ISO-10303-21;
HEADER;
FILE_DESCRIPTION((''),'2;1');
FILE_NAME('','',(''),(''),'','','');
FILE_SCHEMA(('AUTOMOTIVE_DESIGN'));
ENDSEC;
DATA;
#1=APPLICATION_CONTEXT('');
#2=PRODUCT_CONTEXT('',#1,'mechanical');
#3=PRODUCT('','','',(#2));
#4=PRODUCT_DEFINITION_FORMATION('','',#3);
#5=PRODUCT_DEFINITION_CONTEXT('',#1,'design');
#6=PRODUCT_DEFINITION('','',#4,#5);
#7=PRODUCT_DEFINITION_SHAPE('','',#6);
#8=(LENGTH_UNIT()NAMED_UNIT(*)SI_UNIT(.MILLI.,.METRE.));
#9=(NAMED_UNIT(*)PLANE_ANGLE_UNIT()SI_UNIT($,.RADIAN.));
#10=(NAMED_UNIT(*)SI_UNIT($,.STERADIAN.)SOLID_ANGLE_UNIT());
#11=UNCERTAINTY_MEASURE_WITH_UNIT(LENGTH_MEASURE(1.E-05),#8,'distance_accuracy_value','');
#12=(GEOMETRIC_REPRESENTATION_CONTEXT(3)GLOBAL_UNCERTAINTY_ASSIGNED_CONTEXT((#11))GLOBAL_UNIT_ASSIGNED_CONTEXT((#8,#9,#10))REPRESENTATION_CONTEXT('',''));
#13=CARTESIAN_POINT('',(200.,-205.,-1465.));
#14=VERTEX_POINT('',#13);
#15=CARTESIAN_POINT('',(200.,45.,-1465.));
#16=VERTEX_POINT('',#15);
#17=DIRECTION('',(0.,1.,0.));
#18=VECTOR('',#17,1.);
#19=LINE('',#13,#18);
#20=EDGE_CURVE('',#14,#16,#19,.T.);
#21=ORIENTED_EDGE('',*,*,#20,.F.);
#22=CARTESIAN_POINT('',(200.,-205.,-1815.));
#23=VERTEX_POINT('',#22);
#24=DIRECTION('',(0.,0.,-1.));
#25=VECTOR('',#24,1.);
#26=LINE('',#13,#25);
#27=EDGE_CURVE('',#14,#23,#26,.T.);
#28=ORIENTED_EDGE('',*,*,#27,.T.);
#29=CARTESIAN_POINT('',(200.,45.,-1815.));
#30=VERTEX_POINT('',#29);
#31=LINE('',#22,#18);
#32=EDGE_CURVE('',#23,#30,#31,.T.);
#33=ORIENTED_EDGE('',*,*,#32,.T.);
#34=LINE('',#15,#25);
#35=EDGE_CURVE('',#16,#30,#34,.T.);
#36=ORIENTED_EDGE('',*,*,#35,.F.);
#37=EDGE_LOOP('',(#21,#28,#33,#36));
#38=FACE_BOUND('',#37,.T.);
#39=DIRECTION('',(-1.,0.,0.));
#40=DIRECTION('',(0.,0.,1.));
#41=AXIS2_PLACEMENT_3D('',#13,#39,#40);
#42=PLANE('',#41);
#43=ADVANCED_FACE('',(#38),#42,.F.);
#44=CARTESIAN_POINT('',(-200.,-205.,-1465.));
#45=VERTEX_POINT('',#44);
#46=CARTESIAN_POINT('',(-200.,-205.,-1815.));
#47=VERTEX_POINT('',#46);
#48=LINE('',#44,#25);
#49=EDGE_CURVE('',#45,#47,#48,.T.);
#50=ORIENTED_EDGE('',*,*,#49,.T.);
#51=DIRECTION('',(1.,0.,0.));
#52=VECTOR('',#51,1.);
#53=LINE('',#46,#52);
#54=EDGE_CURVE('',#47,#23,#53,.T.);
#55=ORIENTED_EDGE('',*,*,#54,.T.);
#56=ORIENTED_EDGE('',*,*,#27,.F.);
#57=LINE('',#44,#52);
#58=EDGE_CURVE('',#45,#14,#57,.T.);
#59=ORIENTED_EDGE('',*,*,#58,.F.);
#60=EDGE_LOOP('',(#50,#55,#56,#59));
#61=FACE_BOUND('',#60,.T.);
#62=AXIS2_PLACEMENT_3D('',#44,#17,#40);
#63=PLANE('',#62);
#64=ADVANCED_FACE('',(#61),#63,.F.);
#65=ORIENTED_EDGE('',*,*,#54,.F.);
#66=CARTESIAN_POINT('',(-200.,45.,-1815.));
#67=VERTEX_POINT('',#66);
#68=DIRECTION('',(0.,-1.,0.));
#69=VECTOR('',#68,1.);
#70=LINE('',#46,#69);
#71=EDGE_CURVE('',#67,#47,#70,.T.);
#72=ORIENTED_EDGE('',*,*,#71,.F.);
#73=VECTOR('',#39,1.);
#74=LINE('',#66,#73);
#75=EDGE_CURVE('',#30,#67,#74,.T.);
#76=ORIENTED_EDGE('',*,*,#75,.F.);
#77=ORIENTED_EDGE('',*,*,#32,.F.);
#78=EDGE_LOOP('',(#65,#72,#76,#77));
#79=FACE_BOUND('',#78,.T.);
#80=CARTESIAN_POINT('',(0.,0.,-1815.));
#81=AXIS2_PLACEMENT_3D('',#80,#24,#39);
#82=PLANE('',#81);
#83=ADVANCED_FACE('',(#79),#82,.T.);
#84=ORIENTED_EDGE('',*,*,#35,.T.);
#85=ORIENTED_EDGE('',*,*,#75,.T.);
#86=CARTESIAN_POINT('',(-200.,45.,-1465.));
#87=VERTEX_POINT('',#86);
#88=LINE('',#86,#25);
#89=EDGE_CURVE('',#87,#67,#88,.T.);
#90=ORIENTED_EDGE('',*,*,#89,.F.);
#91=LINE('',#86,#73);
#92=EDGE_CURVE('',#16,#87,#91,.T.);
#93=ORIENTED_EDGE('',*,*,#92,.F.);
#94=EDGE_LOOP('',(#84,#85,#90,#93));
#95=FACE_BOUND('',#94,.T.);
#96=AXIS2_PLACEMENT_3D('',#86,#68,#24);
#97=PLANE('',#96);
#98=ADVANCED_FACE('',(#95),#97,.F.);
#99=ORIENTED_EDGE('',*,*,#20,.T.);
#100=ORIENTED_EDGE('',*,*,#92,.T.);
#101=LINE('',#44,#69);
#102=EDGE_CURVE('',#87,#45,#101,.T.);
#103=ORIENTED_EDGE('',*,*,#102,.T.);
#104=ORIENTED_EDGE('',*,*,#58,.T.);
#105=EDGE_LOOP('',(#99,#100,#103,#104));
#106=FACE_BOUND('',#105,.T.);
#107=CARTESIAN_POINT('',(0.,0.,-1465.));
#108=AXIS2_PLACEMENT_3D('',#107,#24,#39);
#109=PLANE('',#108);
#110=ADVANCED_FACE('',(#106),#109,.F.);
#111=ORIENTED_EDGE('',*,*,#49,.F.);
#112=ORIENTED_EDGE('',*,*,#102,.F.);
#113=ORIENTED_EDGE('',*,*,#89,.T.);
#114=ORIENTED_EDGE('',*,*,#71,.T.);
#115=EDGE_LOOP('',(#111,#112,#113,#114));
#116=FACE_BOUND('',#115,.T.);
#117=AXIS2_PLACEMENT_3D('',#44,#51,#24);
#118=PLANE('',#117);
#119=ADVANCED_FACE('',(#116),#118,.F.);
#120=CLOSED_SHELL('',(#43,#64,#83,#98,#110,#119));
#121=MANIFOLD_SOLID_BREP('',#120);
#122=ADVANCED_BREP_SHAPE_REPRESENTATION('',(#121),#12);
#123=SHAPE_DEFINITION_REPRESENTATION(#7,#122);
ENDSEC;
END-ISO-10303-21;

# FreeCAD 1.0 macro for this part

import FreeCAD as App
import Part
import Sketcher
Q = App.Units.Quantity


def add_polygon(sketch, points):
    """Adds a closed chain of lines whose ends are joined by coincident constraints."""
    first, n = sketch.GeometryCount, len(points)
    for a, b in zip(points, points[1:] + points[:1]):
        sketch.addGeometry(Part.LineSegment(App.Vector(*a, 0), App.Vector(*b, 0)), False)
    for i in range(n):
        sketch.addConstraint(Sketcher.Constraint("Coincident", first + i, 2, first + (i + 1) % n, 1))

doc = App.newDocument("Part")
params = doc.addObject("Spreadsheet::Sheet", "Params")
for row, (alias, value) in enumerate([
    ("sketch1_width", "400 mm"),
    ("sketch1_height", "250 mm"),
    ("pad1_length", "350 mm"),
], start=1):
    params.set(f"A{row}", alias)
    params.set(f"B{row}", "=" + value)
    params.setAlias(f"B{row}", alias)

body = doc.addObject("PartDesign::Body", "Body")

sketch1 = doc.addObject("Sketcher::SketchObject", "Sketch")
body.addObject(sketch1)
sketch1.AttachmentSupport = (doc.XY_Plane, [""])
sketch1.MapMode = "FlatFace"
sketch1.AttachmentOffset = App.Placement(App.Vector(0, 0, -1815), App.Rotation())
add_polygon(sketch1, [(-200, 45), (-200, -205), (200, -205), (200, 45)])
sketch1.addConstraint([
    Sketcher.Constraint("Vertical", 0),
    Sketcher.Constraint("Horizontal", 1),
    Sketcher.Constraint("Vertical", 2),
    Sketcher.Constraint("Horizontal", 3),
    Sketcher.Constraint("DistanceX", 1, 1, 1, 2, Q("400 mm")),
    Sketcher.Constraint("DistanceY", 0, 2, 0, 1, Q("250 mm")),
    Sketcher.Constraint("DistanceX", 0, 2, -1, 1, Q("200 mm")),
    Sketcher.Constraint("DistanceY", 0, 2, -1, 1, Q("205 mm")),
])
sketch1.setExpression("Constraints[8]", "Params.sketch1_width")
sketch1.setExpression("Constraints[9]", "Params.sketch1_height")
pad1 = doc.addObject("PartDesign::Pad", "Pad")
body.addObject(pad1)
pad1.Profile = sketch1
pad1.setExpression("Length", "Params.pad1_length")

doc.recompute()
